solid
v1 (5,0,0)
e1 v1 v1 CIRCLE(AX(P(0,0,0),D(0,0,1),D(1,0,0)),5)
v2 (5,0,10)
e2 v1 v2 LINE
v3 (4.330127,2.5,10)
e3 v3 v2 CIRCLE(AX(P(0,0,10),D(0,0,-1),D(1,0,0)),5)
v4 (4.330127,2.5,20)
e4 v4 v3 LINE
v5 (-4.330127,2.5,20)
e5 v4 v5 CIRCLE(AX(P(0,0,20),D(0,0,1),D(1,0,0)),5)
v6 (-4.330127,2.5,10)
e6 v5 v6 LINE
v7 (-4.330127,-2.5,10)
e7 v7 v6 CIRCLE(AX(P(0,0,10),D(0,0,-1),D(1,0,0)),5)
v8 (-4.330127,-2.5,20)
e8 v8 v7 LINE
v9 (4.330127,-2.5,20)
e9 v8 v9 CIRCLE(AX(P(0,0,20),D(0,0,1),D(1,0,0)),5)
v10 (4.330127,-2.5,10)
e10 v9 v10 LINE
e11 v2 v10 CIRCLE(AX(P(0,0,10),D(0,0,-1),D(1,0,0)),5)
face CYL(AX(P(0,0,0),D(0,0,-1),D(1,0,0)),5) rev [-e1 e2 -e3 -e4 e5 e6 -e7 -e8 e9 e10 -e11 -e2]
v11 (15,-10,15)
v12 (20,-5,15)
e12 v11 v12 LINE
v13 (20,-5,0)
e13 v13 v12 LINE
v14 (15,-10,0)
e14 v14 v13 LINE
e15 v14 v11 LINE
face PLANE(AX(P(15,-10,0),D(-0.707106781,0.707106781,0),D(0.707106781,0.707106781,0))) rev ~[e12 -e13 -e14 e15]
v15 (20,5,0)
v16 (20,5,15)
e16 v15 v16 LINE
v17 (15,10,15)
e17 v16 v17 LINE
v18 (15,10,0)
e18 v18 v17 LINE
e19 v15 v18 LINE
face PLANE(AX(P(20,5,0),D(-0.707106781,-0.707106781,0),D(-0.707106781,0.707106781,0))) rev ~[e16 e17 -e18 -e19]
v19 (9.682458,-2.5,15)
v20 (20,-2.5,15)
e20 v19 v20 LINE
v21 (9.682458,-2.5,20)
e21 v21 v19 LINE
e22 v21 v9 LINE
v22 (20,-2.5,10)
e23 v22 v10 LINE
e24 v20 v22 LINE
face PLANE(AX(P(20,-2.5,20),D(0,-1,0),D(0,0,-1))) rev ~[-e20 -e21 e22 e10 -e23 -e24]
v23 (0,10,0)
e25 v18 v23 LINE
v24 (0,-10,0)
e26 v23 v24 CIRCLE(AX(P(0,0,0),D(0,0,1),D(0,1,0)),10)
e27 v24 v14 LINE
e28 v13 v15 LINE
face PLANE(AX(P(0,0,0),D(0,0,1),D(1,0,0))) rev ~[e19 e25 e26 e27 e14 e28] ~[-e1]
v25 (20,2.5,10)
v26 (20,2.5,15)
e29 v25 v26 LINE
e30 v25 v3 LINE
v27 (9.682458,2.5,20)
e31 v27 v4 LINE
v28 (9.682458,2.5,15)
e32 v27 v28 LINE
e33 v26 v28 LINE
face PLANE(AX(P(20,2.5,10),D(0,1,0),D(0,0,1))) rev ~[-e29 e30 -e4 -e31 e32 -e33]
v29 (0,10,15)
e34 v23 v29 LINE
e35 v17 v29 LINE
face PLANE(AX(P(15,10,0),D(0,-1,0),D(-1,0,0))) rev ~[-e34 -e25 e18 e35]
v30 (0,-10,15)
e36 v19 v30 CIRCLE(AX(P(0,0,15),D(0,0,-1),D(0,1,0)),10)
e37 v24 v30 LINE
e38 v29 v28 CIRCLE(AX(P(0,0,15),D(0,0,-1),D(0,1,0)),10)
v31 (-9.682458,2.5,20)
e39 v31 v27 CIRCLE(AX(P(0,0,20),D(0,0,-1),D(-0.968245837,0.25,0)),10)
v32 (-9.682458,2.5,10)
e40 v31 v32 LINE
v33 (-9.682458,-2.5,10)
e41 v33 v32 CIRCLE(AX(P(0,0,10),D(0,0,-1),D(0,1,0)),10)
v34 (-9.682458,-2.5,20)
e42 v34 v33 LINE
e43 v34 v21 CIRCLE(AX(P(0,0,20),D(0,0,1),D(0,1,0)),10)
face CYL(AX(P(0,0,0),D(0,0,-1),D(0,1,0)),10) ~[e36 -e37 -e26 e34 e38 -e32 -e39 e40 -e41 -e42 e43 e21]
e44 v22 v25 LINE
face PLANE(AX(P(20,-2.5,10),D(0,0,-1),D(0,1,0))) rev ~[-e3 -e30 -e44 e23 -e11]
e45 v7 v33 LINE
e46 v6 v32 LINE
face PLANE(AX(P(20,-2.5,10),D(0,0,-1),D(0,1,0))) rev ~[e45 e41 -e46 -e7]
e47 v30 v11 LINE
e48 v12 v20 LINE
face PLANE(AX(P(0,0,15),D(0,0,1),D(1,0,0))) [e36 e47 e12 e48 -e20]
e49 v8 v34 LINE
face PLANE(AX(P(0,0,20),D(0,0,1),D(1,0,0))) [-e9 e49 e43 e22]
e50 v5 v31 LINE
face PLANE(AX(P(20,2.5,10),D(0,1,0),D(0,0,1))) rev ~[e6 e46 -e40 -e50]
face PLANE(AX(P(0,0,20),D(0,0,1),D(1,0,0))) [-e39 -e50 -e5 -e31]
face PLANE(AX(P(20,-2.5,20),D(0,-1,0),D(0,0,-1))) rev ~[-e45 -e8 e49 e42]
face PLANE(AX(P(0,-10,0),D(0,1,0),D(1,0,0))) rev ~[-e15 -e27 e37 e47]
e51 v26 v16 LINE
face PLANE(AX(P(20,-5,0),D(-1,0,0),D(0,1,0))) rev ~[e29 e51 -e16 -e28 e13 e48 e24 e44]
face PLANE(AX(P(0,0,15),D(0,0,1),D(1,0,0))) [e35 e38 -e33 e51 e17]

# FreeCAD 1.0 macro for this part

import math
import FreeCAD as App
import Part
import Sketcher

V = App.Vector

doc = App.newDocument("Part")
body = doc.addObject("PartDesign::Body", "Body")

sketch1 = body.newObject("Sketcher::SketchObject", "Sketch")
sketch1.AttachmentSupport = (doc.getObject("XY_Plane"), [""])
sketch1.MapMode = "FlatFace"
sketch1.addGeometry(Part.ArcOfCircle(Part.Circle(V(0, 0, 0), V(0, 0, 1), 10), math.radians(90), math.radians(270)), False)
sketch1.addGeometry(Part.LineSegment(V(0, -10, 0), V(15, -10, 0)), False)
sketch1.addGeometry(Part.LineSegment(V(15, -10, 0), V(20, -5, 0)), False)
sketch1.addGeometry(Part.LineSegment(V(20, -5, 0), V(20, 5, 0)), False)
sketch1.addGeometry(Part.LineSegment(V(20, 5, 0), V(15, 10, 0)), False)
sketch1.addGeometry(Part.LineSegment(V(15, 10, 0), V(0, 10, 0)), False)
sketch1.addGeometry(Part.Circle(V(0, 0, 0), V(0, 0, 1), 5), False)
sketch1.addConstraint(Sketcher.Constraint("Tangent", 0, 2, 1, 1))
sketch1.addConstraint(Sketcher.Constraint("Coincident", 1, 2, 2, 1))
sketch1.addConstraint(Sketcher.Constraint("Coincident", 2, 2, 3, 1))
sketch1.addConstraint(Sketcher.Constraint("Coincident", 3, 2, 4, 1))
sketch1.addConstraint(Sketcher.Constraint("Coincident", 4, 2, 5, 1))
sketch1.addConstraint(Sketcher.Constraint("Tangent", 5, 2, 0, 1))
sketch1.addConstraint(Sketcher.Constraint("Horizontal", 1))
sketch1.addConstraint(Sketcher.Constraint("Vertical", 3))
sketch1.addConstraint(Sketcher.Constraint("Horizontal", 5))
sketch1.addConstraint(Sketcher.Constraint("Coincident", 0, 3, -1, 1))
sketch1.addConstraint(Sketcher.Constraint("Coincident", 6, 3, -1, 1))
sketch1.addConstraint(Sketcher.Constraint("Perpendicular", 2, 4))
sketch1.addConstraint(Sketcher.Constraint("Vertical", 1, 2, 4, 2))
sketch1.addConstraint(Sketcher.Constraint("Equal", 2, 4))
sketch1.addConstraint(Sketcher.Constraint("Diameter", 6, 10.0))
sketch1.addConstraint(Sketcher.Constraint("Radius", 0, 10.0))
sketch1.addConstraint(Sketcher.Constraint("DistanceX", 1, 1, 1, 2, 15.0))
sketch1.addConstraint(Sketcher.Constraint("DistanceY", 3, 1, 3, 2, 10.0))
pad1 = body.newObject("PartDesign::Pad", "Pad")
pad1.Profile = sketch1
pad1.Length = 15

sketch2 = body.newObject("Sketcher::SketchObject", "Sketch001")
sketch2.AttachmentSupport = (doc.getObject("XY_Plane"), [""])
sketch2.MapMode = "FlatFace"
sketch2.addGeometry(Part.Circle(V(0, 0, 0), V(0, 0, 1), 10), False)
sketch2.addGeometry(Part.Circle(V(0, 0, 0), V(0, 0, 1), 5), False)
sketch2.addConstraint(Sketcher.Constraint("Coincident", 0, 3, -1, 1))
sketch2.addConstraint(Sketcher.Constraint("Coincident", 1, 3, -1, 1))
sketch2.addConstraint(Sketcher.Constraint("Diameter", 0, 20.0))
sketch2.addConstraint(Sketcher.Constraint("Diameter", 1, 10.0))
pad2 = body.newObject("PartDesign::Pad", "Pad001")
pad2.Profile = sketch2
pad2.Length = 20

sketch3 = body.newObject("Sketcher::SketchObject", "Sketch002")
sketch3.AttachmentSupport = (doc.getObject("YZ_Plane"), [""])
sketch3.MapMode = "FlatFace"
sketch3.AttachmentOffset = App.Placement(V(0, 0, 20), App.Rotation())
sketch3.addGeometry(Part.LineSegment(V(2.5, 10, 0), V(2.5, 20, 0)), False)
sketch3.addGeometry(Part.LineSegment(V(2.5, 20, 0), V(-2.5, 20, 0)), False)
sketch3.addGeometry(Part.LineSegment(V(-2.5, 20, 0), V(-2.5, 10, 0)), False)
sketch3.addGeometry(Part.LineSegment(V(-2.5, 10, 0), V(2.5, 10, 0)), False)
sketch3.addConstraint(Sketcher.Constraint("Coincident", 0, 2, 1, 1))
sketch3.addConstraint(Sketcher.Constraint("Coincident", 1, 2, 2, 1))
sketch3.addConstraint(Sketcher.Constraint("Coincident", 2, 2, 3, 1))
sketch3.addConstraint(Sketcher.Constraint("Coincident", 3, 2, 0, 1))
sketch3.addConstraint(Sketcher.Constraint("Vertical", 0))
sketch3.addConstraint(Sketcher.Constraint("Horizontal", 1))
sketch3.addConstraint(Sketcher.Constraint("Vertical", 2))
sketch3.addConstraint(Sketcher.Constraint("Horizontal", 3))
sketch3.addConstraint(Sketcher.Constraint("DistanceX", 1, 2, 1, 1, 5.0))
sketch3.addConstraint(Sketcher.Constraint("DistanceY", 0, 1, 0, 2, 10.0))
sketch3.addConstraint(Sketcher.Constraint("DistanceY", -1, 1, 0, 2, 20.0))
sketch3.addConstraint(Sketcher.Constraint("DistanceX", -1, 1, 0, 2, 2.5))
pocket1 = body.newObject("PartDesign::Pocket", "Pocket")
pocket1.Profile = sketch3
pocket1.Type = "ThroughAll"

doc.recompute()
